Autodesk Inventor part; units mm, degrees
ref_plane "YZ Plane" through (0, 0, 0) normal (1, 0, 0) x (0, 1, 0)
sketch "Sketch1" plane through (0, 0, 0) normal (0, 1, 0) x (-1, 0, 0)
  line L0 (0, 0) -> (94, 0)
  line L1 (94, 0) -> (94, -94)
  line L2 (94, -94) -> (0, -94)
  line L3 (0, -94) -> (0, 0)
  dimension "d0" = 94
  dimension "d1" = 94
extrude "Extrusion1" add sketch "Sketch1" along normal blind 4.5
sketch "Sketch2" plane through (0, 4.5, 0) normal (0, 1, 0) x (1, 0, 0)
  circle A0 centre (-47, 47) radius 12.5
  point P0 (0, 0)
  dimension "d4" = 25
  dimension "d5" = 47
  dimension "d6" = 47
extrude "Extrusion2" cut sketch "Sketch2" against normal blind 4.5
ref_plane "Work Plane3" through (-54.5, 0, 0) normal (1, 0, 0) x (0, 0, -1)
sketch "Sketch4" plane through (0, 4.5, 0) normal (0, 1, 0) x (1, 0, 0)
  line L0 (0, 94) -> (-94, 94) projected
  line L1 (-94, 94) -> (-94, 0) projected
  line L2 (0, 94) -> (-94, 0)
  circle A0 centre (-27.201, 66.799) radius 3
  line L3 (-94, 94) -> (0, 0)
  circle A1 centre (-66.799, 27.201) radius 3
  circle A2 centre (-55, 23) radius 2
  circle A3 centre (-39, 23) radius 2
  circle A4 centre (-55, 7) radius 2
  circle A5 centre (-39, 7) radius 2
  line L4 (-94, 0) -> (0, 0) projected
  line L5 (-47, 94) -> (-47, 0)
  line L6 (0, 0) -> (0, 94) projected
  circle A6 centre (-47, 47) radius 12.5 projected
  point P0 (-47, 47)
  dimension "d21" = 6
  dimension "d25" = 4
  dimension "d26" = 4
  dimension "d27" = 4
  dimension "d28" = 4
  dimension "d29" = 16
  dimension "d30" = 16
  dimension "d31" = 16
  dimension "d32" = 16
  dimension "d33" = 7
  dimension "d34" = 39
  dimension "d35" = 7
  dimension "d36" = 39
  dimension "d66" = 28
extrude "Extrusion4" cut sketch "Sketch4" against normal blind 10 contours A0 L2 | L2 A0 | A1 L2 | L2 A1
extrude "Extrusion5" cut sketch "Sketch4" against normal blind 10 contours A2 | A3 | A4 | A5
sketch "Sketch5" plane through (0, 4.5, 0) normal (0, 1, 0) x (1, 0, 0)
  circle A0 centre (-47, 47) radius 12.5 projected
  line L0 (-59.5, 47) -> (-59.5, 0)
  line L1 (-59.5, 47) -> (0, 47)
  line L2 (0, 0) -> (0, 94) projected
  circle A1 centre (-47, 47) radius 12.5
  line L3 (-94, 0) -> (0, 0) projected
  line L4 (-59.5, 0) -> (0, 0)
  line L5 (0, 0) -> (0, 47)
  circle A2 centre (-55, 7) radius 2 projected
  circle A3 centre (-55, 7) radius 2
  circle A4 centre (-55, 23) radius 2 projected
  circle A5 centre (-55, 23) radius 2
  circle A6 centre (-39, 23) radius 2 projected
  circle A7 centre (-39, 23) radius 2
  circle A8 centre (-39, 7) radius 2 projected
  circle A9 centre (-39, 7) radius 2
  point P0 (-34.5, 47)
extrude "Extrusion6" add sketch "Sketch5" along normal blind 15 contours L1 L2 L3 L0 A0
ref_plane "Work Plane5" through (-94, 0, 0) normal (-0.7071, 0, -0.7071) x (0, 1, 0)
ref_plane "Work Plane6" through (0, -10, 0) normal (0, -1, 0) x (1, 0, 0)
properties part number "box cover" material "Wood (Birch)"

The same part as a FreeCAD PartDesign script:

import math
import FreeCAD as App
import Part
import Sketcher
Q = App.Units.Quantity

doc = App.newDocument("Part")
body = doc.addObject("PartDesign::Body", "Body")

sketch1 = body.newObject("Sketcher::SketchObject", "Sketch")
sketch1.AttachmentSupport = (doc.getObject("XZ_Plane"), [""])
sketch1.MapMode = "FlatFace"
sketch1.addGeometry([
    Part.LineSegment(App.Vector(-94, 0, 0), App.Vector(0, 0, 0)),
    Part.LineSegment(App.Vector(0, 0, 0), App.Vector(0, -94, 0)),
    Part.LineSegment(App.Vector(0, -94, 0), App.Vector(-94, -94, 0)),
    Part.LineSegment(App.Vector(-94, -94, 0), App.Vector(-94, 0, 0)),
], False)
sketch1.addConstraint([
    Sketcher.Constraint("Coincident", 0, 2, 1, 1),
    Sketcher.Constraint("Coincident", 1, 2, 2, 1),
    Sketcher.Constraint("Coincident", 2, 2, 3, 1),
    Sketcher.Constraint("Coincident", 3, 2, 0, 1),
    Sketcher.Constraint("Horizontal", 0),
    Sketcher.Constraint("Vertical", 1),
    Sketcher.Constraint("Horizontal", 2),
    Sketcher.Constraint("Vertical", 3),
    Sketcher.Constraint("Coincident", 0, 2, -1, 1),
    Sketcher.Constraint("Equal", 2, 1),
    Sketcher.Constraint("DistanceX", 0, 1, 0, 2, Q("94 mm")),
])
pad1 = body.newObject("PartDesign::Pad", "Pad")
pad1.Profile = sketch1
pad1.Length = 4.5
pad1.Reversed = True

sketch2 = body.newObject("Sketcher::SketchObject", "Sketch001")
sketch2.AttachmentSupport = (doc.getObject("XZ_Plane"), [""])
sketch2.MapMode = "FlatFace"
sketch2.AttachmentOffset = App.Placement(App.Vector(0, 0, -4.5), App.Rotation())
sketch2.addGeometry(Part.Circle(App.Vector(-47, -47, 0), App.Vector(0, 0, 1), 12), False)
sketch2.addConstraint([
    Sketcher.Constraint("Diameter", 0, Q("25 mm")),
    Sketcher.Constraint("DistanceX", 0, 3, -1, 1, Q("47 mm")),
    Sketcher.Constraint("DistanceY", 0, 3, -1, 1, Q("47 mm")),
])
pocket1 = body.newObject("PartDesign::Pocket", "Pocket")
pocket1.Profile = sketch2
pocket1.Length = 4.5
pocket1.Reversed = True

sketch3 = body.newObject("Sketcher::SketchObject", "Sketch002")
sketch3.AttachmentSupport = (doc.getObject("XZ_Plane"), [""])
sketch3.MapMode = "FlatFace"
sketch3.AttachmentOffset = App.Placement(App.Vector(0, 0, -4.5), App.Rotation())
sketch3.addGeometry([
    Part.Circle(App.Vector(-27.2, -66.8, 0), App.Vector(0, 0, 1), 3),
    Part.Circle(App.Vector(-66.8, -27.2, 0), App.Vector(0, 0, 1), 3),
], False)
sketch3.addConstraint([
    Sketcher.Constraint("Equal", 0, 1),
    Sketcher.Constraint("Diameter", 0, Q("6 mm")),
    Sketcher.Constraint("DistanceX", 0, 3, -1, 1, Q("27.201 mm")),
    Sketcher.Constraint("DistanceY", 0, 3, -1, 1, Q("66.799 mm")),
    Sketcher.Constraint("DistanceX", 1, 3, -1, 1, Q("66.799 mm")),
    Sketcher.Constraint("DistanceY", 1, 3, -1, 1, Q("27.201 mm")),
])
pocket2 = body.newObject("PartDesign::Pocket", "Pocket001")
pocket2.Profile = sketch3
pocket2.Length = 10
pocket2.Reversed = True

sketch4 = body.newObject("Sketcher::SketchObject", "Sketch003")
sketch4.AttachmentSupport = (doc.getObject("XZ_Plane"), [""])
sketch4.MapMode = "FlatFace"
sketch4.AttachmentOffset = App.Placement(App.Vector(0, 0, -4.5), App.Rotation())
sketch4.addGeometry([
    Part.Circle(App.Vector(-55, -23, 0), App.Vector(0, 0, 1), 2),
    Part.Circle(App.Vector(-39, -23, 0), App.Vector(0, 0, 1), 2),
    Part.Circle(App.Vector(-55, -7, 0), App.Vector(0, 0, 1), 2),
    Part.Circle(App.Vector(-39, -7, 0), App.Vector(0, 0, 1), 2),
], False)
sketch4.addConstraint([
    Sketcher.Constraint("Equal", 0, 1),
    Sketcher.Constraint("Equal", 1, 2),
    Sketcher.Constraint("Equal", 2, 3),
    Sketcher.Constraint("Horizontal", 0, 3, 1, 3),
    Sketcher.Constraint("Horizontal", 2, 3, 3, 3),
    Sketcher.Constraint("Vertical", 0, 3, 2, 3),
    Sketcher.Constraint("Vertical", 1, 3, 3, 3),
    Sketcher.Constraint("Diameter", 0, Q("4 mm")),
    Sketcher.Constraint("DistanceX", 1, 3, -1, 1, Q("39 mm")),
    Sketcher.Constraint("DistanceY", 2, 3, -1, 1, Q("7 mm")),
    Sketcher.Constraint("DistanceX", 0, 3, 1, 3, Q("16 mm")),
    Sketcher.Constraint("DistanceY", 0, 3, 2, 3, Q("16 mm")),
])
pocket3 = body.newObject("PartDesign::Pocket", "Pocket002")
pocket3.Profile = sketch4
pocket3.Length = 10
pocket3.Reversed = True

sketch5 = body.newObject("Sketcher::SketchObject", "Sketch004")
sketch5.AttachmentSupport = (doc.getObject("XZ_Plane"), [""])
sketch5.MapMode = "FlatFace"
sketch5.AttachmentOffset = App.Placement(App.Vector(0, 0, -4.5), App.Rotation())
sketch5.addGeometry([
    Part.LineSegment(App.Vector(0, -47, 0), App.Vector(-34.5, -47, 0)),
    Part.ArcOfCircle(Part.Circle(App.Vector(-47, -47, 0), App.Vector(0, 0, 1), 12.5), math.radians(0), math.radians(180)),
    Part.LineSegment(App.Vector(-59.5, -47, 0), App.Vector(-59.5, 0, 0)),
    Part.LineSegment(App.Vector(-59.5, 0, 0), App.Vector(0, 0, 0)),
    Part.LineSegment(App.Vector(0, 0, 0), App.Vector(0, -47, 0)),
    Part.Circle(App.Vector(-55, -7, 0), App.Vector(0, 0, 1), 2),
    Part.Circle(App.Vector(-39, -7, 0), App.Vector(0, 0, 1), 2),
    Part.Circle(App.Vector(-55, -23, 0), App.Vector(0, 0, 1), 2),
    Part.Circle(App.Vector(-39, -23, 0), App.Vector(0, 0, 1), 2),
], False)
sketch5.addConstraint([
    Sketcher.Constraint("Coincident", 0, 2, 1, 1),
    Sketcher.Constraint("Tangent", 1, 2, 2, 1),
    Sketcher.Constraint("Coincident", 2, 2, 3, 1),
    Sketcher.Constraint("Coincident", 3, 2, 4, 1),
    Sketcher.Constraint("Coincident", 4, 2, 0, 1),
    Sketcher.Constraint("Horizontal", 0),
    Sketcher.Constraint("Vertical", 2),
    Sketcher.Constraint("Horizontal", 3),
    Sketcher.Constraint("Vertical", 4),
    Sketcher.Constraint("Coincident", 3, 2, -1, 1),
    Sketcher.Constraint("Equal", 5, 6),
    Sketcher.Constraint("Equal", 6, 7),
    Sketcher.Constraint("Equal", 7, 8),
    Sketcher.Constraint("Horizontal", 5, 3, 6, 3),
    Sketcher.Constraint("Horizontal", 7, 3, 8, 3),
    Sketcher.Constraint("Horizontal", 1, 3, 0, 2),
    Sketcher.Constraint("Vertical", 5, 3, 7, 3),
    Sketcher.Constraint("Vertical", 6, 3, 8, 3),
    Sketcher.Constraint("Diameter", 5, Q("4 mm")),
    Sketcher.Constraint("Radius", 1, Q("12.5 mm")),
    Sketcher.Constraint("DistanceY", 2, 1, 2, 2, Q("47 mm")),
    Sketcher.Constraint("DistanceX", 0, 2, 0, 1, Q("34.5 mm")),
    Sketcher.Constraint("DistanceX", 5, 3, -1, 1, Q("55 mm")),
    Sketcher.Constraint("DistanceY", 5, 3, -1, 1, Q("7 mm")),
    Sketcher.Constraint("DistanceX", 6, 3, -1, 1, Q("39 mm")),
    Sketcher.Constraint("DistanceY", 7, 3, -1, 1, Q("23 mm")),
])
pad2 = body.newObject("PartDesign::Pad", "Pad001")
pad2.Profile = sketch5
pad2.Length = 15
pad2.Reversed = True

doc.recompute()
